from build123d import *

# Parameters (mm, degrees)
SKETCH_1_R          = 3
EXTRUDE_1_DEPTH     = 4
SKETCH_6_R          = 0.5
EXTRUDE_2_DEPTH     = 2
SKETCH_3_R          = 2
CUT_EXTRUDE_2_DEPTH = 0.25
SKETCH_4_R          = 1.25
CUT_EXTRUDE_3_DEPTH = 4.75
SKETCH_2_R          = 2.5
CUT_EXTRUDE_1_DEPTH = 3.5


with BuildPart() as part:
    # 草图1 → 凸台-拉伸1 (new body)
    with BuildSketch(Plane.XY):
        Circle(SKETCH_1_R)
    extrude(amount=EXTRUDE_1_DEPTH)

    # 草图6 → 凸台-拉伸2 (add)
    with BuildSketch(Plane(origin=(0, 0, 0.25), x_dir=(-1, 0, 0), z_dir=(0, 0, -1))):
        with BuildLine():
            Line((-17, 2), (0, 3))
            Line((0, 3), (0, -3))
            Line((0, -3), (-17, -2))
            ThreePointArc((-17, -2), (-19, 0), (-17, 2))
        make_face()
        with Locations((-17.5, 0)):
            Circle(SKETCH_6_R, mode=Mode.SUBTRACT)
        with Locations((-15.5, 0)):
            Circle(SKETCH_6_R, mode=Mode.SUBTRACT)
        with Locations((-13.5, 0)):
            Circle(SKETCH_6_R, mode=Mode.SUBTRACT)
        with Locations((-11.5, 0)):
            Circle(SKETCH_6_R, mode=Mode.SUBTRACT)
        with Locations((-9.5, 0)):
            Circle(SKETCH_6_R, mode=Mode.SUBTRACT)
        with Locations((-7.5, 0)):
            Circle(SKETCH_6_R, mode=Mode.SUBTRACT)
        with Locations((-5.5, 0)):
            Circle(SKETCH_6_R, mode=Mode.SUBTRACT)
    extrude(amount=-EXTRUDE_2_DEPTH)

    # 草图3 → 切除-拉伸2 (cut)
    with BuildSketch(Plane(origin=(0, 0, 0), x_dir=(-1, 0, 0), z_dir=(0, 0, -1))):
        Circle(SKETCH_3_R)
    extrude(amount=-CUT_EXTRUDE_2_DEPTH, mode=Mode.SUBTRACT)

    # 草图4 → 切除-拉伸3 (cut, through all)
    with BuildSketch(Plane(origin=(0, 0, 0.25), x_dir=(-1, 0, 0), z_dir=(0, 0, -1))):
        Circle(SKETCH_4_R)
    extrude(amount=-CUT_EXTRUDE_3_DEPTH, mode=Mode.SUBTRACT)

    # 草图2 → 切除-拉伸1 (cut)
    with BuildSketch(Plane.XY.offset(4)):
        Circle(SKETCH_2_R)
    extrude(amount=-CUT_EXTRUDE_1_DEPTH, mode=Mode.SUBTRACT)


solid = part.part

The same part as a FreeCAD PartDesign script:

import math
import FreeCAD as App
import Part
import Sketcher

V = App.Vector

doc = App.newDocument("Part")
params = doc.addObject("Spreadsheet::Sheet", "Params")
for row, (alias, value) in enumerate([
    ("sketch1_diameter", "6 mm"),
    ("pad1_length", "4 mm"),
    ("sketch2_diameter", "1 mm"),
    ("sketch2_radius", "2 mm"),
    ("sketch2_height", "6 mm"),
    ("pad2_length", "2 mm"),
    ("sketch3_diameter", "4 mm"),
    ("pocket1_length", "0.25 mm"),
    ("sketch4_diameter", "2.5 mm"),
    ("sketch5_diameter", "5 mm"),
    ("pocket3_length", "3.5 mm"),
], start=1):
    params.set(f"A{row}", alias)
    params.set(f"B{row}", "=" + value)
    params.setAlias(f"B{row}", alias)

body = doc.addObject("PartDesign::Body", "Body")

# Sketch on XY plane
sketch1 = body.newObject("Sketcher::SketchObject", "Sketch")
sketch1.AttachmentSupport = (doc.getObject("XY_Plane"), [""])
sketch1.MapMode = "FlatFace"
sketch1.addGeometry(Part.Circle(V(0, 0, 0), V(0, 0, 1), 3), False)
sketch1.addConstraint([
    Sketcher.Constraint("Coincident", 0, 3, -1, 1),
    Sketcher.Constraint("Diameter", 0, 6.0),
])
sketch1.setExpression("Constraints[1]", "Params.sketch1_diameter")
pad1 = body.newObject("PartDesign::Pad", "Pad")
pad1.Profile = sketch1
pad1.setExpression("Length", "Params.pad1_length")

# Sketch on XY plane
sketch2 = body.newObject("Sketcher::SketchObject", "Sketch001")
sketch2.AttachmentSupport = (doc.getObject("XY_Plane"), [""])
sketch2.MapMode = "FlatFace"
sketch2.AttachmentOffset = App.Placement(V(0, 0, 0.25), App.Rotation())
sketch2.addGeometry([
    Part.LineSegment(V(0, 3, 0), V(17, 2, 0)),  # 0
    Part.ArcOfCircle(Part.Circle(V(17, 0, 0), V(0, 0, 1), 2), math.radians(-90), math.radians(90)),  # 1
    Part.LineSegment(V(17, -2, 0), V(0, -3, 0)),  # 2
    Part.LineSegment(V(0, -3, 0), V(0, 3, 0)),  # 3
    Part.Circle(V(5.5, 0, 0), V(0, 0, 1), 0.5),  # 4
    Part.Circle(V(7.5, 0, 0), V(0, 0, 1), 0.5),  # 5
    Part.Circle(V(9.5, 0, 0), V(0, 0, 1), 0.5),  # 6
    Part.Circle(V(11.5, 0, 0), V(0, 0, 1), 0.5),  # 7
    Part.Circle(V(13.5, 0, 0), V(0, 0, 1), 0.5),  # 8
    Part.Circle(V(15.5, 0, 0), V(0, 0, 1), 0.5),  # 9
    Part.Circle(V(17.5, 0, 0), V(0, 0, 1), 0.5),  # 10
], False)
sketch2.addConstraint([
    Sketcher.Constraint("Coincident", 0, 2, 1, 2),
    Sketcher.Constraint("Coincident", 1, 1, 2, 1),
    Sketcher.Constraint("Coincident", 2, 2, 3, 1),
    Sketcher.Constraint("Coincident", 3, 2, 0, 1),
    Sketcher.Constraint("Vertical", 3),
    Sketcher.Constraint("Equal", 4, 5),
    Sketcher.Constraint("Equal", 5, 6),
    Sketcher.Constraint("Equal", 6, 7),
    Sketcher.Constraint("Equal", 7, 8),
    Sketcher.Constraint("Equal", 8, 9),
    Sketcher.Constraint("Equal", 9, 10),
    Sketcher.Constraint("Symmetric", 2, 2, 3, 2, -1, 1),
    Sketcher.Constraint("Symmetric", 0, 2, 1, 1, -1),
    Sketcher.Constraint("PointOnObject", 4, 3, -1),
    Sketcher.Constraint("PointOnObject", 5, 3, -1),
    Sketcher.Constraint("PointOnObject", 6, 3, -1),
    Sketcher.Constraint("PointOnObject", 7, 3, -1),
    Sketcher.Constraint("PointOnObject", 8, 3, -1),
    Sketcher.Constraint("PointOnObject", 9, 3, -1),
    Sketcher.Constraint("PointOnObject", 10, 3, -1),
    Sketcher.Constraint("Vertical", 1, 3, 0, 2),
    Sketcher.Constraint("Diameter", 4, 1.0),
    Sketcher.Constraint("Radius", 1, 2.0),
    Sketcher.Constraint("DistanceY", 3, 1, 3, 2, 6.0),
    Sketcher.Constraint("DistanceX", -1, 1, 1, 3, 17.0),
    Sketcher.Constraint("DistanceX", 4, 3, 5, 3, 2.0),
    Sketcher.Constraint("DistanceX", 5, 3, 6, 3, 2.0),
    Sketcher.Constraint("DistanceX", 6, 3, 7, 3, 2.0),
    Sketcher.Constraint("DistanceX", 7, 3, 8, 3, 2.0),
    Sketcher.Constraint("DistanceX", 8, 3, 9, 3, 2.0),
    Sketcher.Constraint("DistanceX", 9, 3, 10, 3, 2.0),
    Sketcher.Constraint("DistanceX", -1, 1, 4, 3, 5.5),
])
sketch2.setExpression("Constraints[21]", "Params.sketch2_diameter")
sketch2.setExpression("Constraints[22]", "Params.sketch2_radius")
sketch2.setExpression("Constraints[23]", "Params.sketch2_height")
pad2 = body.newObject("PartDesign::Pad", "Pad001")
pad2.Profile = sketch2
pad2.setExpression("Length", "Params.pad2_length")

# Sketch on XY plane
sketch3 = body.newObject("Sketcher::SketchObject", "Sketch002")
sketch3.AttachmentSupport = (doc.getObject("XY_Plane"), [""])
sketch3.MapMode = "FlatFace"
sketch3.addGeometry(Part.Circle(V(0, 0, 0), V(0, 0, 1), 2), False)
sketch3.addConstraint([
    Sketcher.Constraint("Coincident", 0, 3, -1, 1),
    Sketcher.Constraint("Diameter", 0, 4.0),
])
sketch3.setExpression("Constraints[1]", "Params.sketch3_diameter")
pocket1 = body.newObject("PartDesign::Pocket", "Pocket")
pocket1.Profile = sketch3
pocket1.setExpression("Length", "Params.pocket1_length")
pocket1.Reversed = True

# Sketch on XY plane
sketch4 = body.newObject("Sketcher::SketchObject", "Sketch003")
sketch4.AttachmentSupport = (doc.getObject("XY_Plane"), [""])
sketch4.MapMode = "FlatFace"
sketch4.AttachmentOffset = App.Placement(V(0, 0, 0.25), App.Rotation())
sketch4.addGeometry(Part.Circle(V(0, 0, 0), V(0, 0, 1), 1.2), False)
sketch4.addConstraint([
    Sketcher.Constraint("Coincident", 0, 3, -1, 1),
    Sketcher.Constraint("Diameter", 0, 2.5),
])
sketch4.setExpression("Constraints[1]", "Params.sketch4_diameter")
pocket2 = body.newObject("PartDesign::Pocket", "Pocket001")
pocket2.Profile = sketch4
pocket2.Type = "ThroughAll"
pocket2.Reversed = True

# Sketch on XY plane
sketch5 = body.newObject("Sketcher::SketchObject", "Sketch004")
sketch5.AttachmentSupport = (doc.getObject("XY_Plane"), [""])
sketch5.MapMode = "FlatFace"
sketch5.AttachmentOffset = App.Placement(V(0, 0, 4), App.Rotation())
sketch5.addGeometry(Part.Circle(V(0, 0, 0), V(0, 0, 1), 2.5), False)
sketch5.addConstraint([
    Sketcher.Constraint("Coincident", 0, 3, -1, 1),
    Sketcher.Constraint("Diameter", 0, 5.0),
])
sketch5.setExpression("Constraints[1]", "Params.sketch5_diameter")
pocket3 = body.newObject("PartDesign::Pocket", "Pocket002")
pocket3.Profile = sketch5
pocket3.setExpression("Length", "Params.pocket3_length")

doc.recompute()
